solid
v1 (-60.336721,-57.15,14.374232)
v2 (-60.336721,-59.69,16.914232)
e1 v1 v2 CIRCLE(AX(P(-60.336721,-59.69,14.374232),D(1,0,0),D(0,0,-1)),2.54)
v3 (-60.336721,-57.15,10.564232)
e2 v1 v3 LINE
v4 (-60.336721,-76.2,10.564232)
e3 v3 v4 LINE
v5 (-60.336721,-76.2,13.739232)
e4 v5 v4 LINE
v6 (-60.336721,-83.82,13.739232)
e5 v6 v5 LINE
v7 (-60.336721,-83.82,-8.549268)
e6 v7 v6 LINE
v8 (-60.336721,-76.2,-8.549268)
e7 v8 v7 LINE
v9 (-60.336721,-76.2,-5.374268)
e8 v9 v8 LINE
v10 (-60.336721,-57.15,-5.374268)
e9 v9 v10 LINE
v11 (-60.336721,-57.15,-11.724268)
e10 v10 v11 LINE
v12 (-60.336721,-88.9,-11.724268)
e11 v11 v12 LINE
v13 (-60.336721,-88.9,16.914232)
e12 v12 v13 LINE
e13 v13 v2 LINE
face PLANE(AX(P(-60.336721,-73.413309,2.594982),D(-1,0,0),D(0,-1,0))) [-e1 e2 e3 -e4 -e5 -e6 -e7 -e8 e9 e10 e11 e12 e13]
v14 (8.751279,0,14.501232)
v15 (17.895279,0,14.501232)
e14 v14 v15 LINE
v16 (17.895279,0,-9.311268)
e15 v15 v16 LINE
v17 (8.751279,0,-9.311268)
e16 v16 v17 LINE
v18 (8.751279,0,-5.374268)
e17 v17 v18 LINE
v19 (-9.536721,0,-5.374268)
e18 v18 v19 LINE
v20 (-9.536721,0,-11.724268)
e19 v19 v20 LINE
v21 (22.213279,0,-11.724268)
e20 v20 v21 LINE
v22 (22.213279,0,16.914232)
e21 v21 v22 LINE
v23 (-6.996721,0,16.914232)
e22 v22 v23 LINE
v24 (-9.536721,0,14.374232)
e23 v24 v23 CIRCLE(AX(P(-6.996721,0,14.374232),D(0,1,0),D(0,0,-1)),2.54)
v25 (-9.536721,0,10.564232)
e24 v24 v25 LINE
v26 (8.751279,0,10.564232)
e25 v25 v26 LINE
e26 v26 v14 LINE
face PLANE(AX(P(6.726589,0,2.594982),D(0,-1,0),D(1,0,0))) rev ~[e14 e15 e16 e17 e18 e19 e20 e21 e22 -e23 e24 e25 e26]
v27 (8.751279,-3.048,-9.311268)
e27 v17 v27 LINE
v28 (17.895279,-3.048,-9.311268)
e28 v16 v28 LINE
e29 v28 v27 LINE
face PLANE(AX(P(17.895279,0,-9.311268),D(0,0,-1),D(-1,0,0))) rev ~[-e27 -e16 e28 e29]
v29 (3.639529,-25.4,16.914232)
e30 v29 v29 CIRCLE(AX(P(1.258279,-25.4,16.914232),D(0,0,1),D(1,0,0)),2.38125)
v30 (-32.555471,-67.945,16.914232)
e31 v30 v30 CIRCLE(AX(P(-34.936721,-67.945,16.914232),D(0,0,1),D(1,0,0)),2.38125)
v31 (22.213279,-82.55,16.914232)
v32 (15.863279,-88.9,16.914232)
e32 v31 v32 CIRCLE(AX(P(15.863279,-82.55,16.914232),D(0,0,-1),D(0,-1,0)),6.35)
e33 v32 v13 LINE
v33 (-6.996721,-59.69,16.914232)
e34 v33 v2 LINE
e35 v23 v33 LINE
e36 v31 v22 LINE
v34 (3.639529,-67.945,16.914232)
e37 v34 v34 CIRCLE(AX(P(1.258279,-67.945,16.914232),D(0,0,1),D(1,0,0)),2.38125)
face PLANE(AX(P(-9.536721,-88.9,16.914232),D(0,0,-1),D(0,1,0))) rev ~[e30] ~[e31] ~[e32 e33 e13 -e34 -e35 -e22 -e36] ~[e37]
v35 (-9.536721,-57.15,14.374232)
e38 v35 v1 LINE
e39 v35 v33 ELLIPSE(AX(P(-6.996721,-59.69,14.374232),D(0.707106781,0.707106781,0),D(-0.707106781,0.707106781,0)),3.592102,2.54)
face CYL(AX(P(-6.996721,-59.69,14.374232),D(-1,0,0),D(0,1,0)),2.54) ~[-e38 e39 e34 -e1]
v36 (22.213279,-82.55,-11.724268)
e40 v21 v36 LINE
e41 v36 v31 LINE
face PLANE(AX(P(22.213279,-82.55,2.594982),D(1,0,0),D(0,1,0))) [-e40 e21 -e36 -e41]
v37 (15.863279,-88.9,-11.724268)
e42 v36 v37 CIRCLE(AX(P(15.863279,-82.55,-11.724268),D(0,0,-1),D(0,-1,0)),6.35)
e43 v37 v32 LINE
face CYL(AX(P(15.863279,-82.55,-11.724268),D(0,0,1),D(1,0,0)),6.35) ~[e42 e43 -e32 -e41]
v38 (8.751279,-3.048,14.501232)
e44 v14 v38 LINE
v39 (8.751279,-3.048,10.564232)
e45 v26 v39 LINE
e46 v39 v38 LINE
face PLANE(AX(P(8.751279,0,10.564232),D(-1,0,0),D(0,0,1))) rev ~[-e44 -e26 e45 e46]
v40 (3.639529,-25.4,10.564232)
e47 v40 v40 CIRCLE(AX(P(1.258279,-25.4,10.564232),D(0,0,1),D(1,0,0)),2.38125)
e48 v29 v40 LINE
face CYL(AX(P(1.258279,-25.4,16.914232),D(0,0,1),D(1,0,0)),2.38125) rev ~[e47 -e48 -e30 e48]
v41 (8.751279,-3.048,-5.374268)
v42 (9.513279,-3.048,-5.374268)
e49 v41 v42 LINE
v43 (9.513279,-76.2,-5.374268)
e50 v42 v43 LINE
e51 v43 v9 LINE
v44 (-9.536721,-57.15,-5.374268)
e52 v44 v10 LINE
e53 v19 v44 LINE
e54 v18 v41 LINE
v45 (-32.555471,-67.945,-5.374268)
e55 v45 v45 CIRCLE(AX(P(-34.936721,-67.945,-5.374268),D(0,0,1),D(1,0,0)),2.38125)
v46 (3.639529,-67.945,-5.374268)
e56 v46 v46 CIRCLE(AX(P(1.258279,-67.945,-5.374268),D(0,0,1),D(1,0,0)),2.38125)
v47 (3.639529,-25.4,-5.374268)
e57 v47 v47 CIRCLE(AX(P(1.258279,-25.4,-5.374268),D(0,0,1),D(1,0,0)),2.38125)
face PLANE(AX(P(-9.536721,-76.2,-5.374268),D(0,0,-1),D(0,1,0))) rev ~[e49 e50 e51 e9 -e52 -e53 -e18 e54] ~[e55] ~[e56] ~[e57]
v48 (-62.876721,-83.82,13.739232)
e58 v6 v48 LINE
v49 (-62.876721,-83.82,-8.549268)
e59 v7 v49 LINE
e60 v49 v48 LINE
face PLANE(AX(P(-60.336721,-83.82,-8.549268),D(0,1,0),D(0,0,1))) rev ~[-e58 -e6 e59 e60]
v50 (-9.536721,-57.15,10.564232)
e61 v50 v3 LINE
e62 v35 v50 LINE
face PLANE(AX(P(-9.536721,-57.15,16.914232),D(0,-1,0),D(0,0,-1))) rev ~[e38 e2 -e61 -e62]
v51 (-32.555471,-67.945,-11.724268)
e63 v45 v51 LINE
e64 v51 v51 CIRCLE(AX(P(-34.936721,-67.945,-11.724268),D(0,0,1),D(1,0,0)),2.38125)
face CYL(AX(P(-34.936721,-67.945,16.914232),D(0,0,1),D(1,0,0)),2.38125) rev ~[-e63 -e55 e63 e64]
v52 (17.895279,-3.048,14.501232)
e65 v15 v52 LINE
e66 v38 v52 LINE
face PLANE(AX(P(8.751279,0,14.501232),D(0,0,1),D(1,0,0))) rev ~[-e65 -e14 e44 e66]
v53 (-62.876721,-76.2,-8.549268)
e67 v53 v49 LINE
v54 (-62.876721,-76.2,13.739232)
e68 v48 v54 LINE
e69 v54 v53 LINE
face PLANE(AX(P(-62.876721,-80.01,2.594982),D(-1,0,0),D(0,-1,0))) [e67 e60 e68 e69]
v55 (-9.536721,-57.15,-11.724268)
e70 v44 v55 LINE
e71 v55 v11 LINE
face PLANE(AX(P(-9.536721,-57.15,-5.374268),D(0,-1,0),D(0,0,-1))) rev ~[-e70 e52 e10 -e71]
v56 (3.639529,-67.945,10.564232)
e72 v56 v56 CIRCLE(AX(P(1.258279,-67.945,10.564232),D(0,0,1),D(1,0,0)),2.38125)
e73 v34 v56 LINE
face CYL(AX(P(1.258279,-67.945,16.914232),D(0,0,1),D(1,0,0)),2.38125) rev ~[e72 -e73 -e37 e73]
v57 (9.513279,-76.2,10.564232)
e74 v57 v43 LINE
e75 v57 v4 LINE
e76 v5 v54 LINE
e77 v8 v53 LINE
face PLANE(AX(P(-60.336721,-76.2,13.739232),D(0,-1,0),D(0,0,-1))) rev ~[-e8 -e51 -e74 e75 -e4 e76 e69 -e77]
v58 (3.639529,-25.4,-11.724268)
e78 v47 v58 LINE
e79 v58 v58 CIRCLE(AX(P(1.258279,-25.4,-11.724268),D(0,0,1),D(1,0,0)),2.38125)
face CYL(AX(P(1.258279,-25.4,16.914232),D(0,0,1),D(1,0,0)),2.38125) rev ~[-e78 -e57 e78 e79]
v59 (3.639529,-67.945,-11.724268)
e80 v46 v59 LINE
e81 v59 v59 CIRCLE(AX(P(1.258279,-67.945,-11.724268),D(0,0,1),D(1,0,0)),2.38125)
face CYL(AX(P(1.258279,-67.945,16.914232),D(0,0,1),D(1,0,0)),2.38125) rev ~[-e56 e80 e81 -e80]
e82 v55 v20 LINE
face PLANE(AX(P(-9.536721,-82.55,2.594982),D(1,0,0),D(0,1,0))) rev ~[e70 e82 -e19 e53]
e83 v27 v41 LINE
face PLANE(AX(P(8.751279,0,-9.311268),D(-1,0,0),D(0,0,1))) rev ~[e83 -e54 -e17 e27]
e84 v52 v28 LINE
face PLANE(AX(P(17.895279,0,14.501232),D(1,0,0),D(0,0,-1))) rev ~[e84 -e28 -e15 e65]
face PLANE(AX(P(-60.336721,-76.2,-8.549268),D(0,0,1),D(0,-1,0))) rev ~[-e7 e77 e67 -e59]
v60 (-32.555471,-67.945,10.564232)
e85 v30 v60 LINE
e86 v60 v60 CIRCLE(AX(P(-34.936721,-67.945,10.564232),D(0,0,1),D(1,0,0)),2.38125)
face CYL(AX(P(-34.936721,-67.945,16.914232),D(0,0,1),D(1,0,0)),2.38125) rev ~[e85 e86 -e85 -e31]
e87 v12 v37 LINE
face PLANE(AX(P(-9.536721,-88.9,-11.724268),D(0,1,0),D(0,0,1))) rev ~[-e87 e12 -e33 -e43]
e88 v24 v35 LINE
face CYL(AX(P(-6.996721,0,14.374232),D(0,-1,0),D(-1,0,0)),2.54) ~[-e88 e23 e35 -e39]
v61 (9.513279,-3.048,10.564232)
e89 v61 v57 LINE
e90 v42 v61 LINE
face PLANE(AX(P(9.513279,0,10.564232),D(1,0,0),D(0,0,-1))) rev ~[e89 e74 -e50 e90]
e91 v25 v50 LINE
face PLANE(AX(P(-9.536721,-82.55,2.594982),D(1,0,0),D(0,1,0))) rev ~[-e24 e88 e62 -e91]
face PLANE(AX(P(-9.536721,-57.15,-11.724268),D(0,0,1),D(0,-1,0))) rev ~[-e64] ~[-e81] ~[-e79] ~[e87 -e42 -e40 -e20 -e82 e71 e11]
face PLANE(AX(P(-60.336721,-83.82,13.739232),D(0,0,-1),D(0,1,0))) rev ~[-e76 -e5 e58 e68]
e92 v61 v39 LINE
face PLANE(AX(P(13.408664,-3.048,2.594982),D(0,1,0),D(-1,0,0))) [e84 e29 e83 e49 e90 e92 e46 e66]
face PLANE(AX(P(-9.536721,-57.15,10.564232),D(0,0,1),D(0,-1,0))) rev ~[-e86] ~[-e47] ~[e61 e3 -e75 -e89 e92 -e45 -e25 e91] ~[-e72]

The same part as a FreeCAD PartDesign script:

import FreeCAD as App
import Part
import Sketcher
Q = App.Units.Quantity


def edges_at(feature, points):
    """Names of the edges that pass closest to the given points."""
    edges = feature.Shape.Edges
    near = lambda p: min(range(len(edges)), key=lambda i: edges[i].distToShape(Part.Vertex(*p))[0])
    return sorted({f"Edge{near(p) + 1}" for p in points})


def add_polygon(sketch, points):
    """Adds a closed chain of lines whose ends are joined by coincident constraints."""
    first, n = sketch.GeometryCount, len(points)
    for a, b in zip(points, points[1:] + points[:1]):
        sketch.addGeometry(Part.LineSegment(App.Vector(*a, 0), App.Vector(*b, 0)), False)
    for i in range(n):
        sketch.addConstraint(Sketcher.Constraint("Coincident", first + i, 2, first + (i + 1) % n, 1))

doc = App.newDocument("Part")
body = doc.addObject("PartDesign::Body", "Body")

sketch1 = body.newObject("Sketcher::SketchObject", "Sketch")
sketch1.AttachmentSupport = (doc.getObject("XZ_Plane"), [""])
sketch1.MapMode = "FlatFace"
add_polygon(sketch1, [(22, -12), (22, 17), (-10, 17), (-10, 11), (10, 11), (10, -5), (-10, -5), (-10, -12)])
sketch1.addConstraint([
    Sketcher.Constraint("Vertical", 0),
    Sketcher.Constraint("Horizontal", 1),
    Sketcher.Constraint("Vertical", 2),
    Sketcher.Constraint("Horizontal", 3),
    Sketcher.Constraint("Vertical", 4),
    Sketcher.Constraint("Horizontal", 5),
    Sketcher.Constraint("Vertical", 6),
    Sketcher.Constraint("Horizontal", 7),
    Sketcher.Constraint("Vertical", 2, 2, 5, 2),
    Sketcher.Constraint("Equal", 2, 6),
    Sketcher.Constraint("DistanceX", 1, 2, 1, 1, Q("1.25 in")),
    Sketcher.Constraint("DistanceX", 3, 1, 3, 2, Q("0.75 in")),
    Sketcher.Constraint("DistanceY", 2, 2, 2, 1, Q("0.25 in")),
    Sketcher.Constraint("DistanceY", 0, 1, 0, 2, Q("1.1275 in")),
    Sketcher.Constraint("DistanceX", -1, 1, 0, 2, 22.213279),
    Sketcher.Constraint("DistanceY", -1, 1, 0, 2, 16.914232),
])
pad1 = body.newObject("PartDesign::Pad", "Pad")
pad1.Profile = sketch1
pad1.Length = Q("3 in")

sketch2 = body.newObject("Sketcher::SketchObject", "Sketch001")
sketch2.AttachmentSupport = (doc.getObject("YZ_Plane"), [""])
sketch2.MapMode = "FlatFace"
sketch2.AttachmentOffset = App.Placement(App.Vector(0, 0, 22.213279), App.Rotation())
add_polygon(sketch2, [(-89, 17), (-89, -12), (-76, -12), (-76, 17)])
sketch2.addConstraint([
    Sketcher.Constraint("Vertical", 0),
    Sketcher.Constraint("Horizontal", 1),
    Sketcher.Constraint("Vertical", 2),
    Sketcher.Constraint("Horizontal", 3),
    Sketcher.Constraint("DistanceX", 1, 1, 1, 2, Q("0.5 in")),
    Sketcher.Constraint("DistanceX", 1, 2, -1, 1, Q("3 in")),
    Sketcher.Constraint("DistanceY", 0, 2, 0, 1, Q("1.1275 in")),
    Sketcher.Constraint("DistanceY", 0, 2, -1, 1, 11.724268),
])
pad2 = body.newObject("PartDesign::Pad", "Pad001")
pad2.Profile = sketch2
pad2.Length = Q("1.25 in")
pad2.Reversed = True

sketch3 = body.newObject("Sketcher::SketchObject", "Sketch002")
sketch3.AttachmentSupport = (doc.getObject("YZ_Plane"), [""])
sketch3.MapMode = "FlatFace"
sketch3.AttachmentOffset = App.Placement(App.Vector(0, 0, -9.536721), App.Rotation())
add_polygon(sketch3, [(-89, -12), (-89, 17), (-57, 17), (-57, 11), (-76, 11), (-76, -5), (-57, -5), (-57, -12)])
sketch3.addConstraint([
    Sketcher.Constraint("Vertical", 0),
    Sketcher.Constraint("Horizontal", 1),
    Sketcher.Constraint("Vertical", 2),
    Sketcher.Constraint("Horizontal", 3),
    Sketcher.Constraint("Vertical", 4),
    Sketcher.Constraint("Horizontal", 5),
    Sketcher.Constraint("Vertical", 6),
    Sketcher.Constraint("Horizontal", 7),
    Sketcher.Constraint("Vertical", 2, 2, 5, 2),
    Sketcher.Constraint("Equal", 2, 6),
    Sketcher.Constraint("DistanceX", 3, 2, -1, 1, Q("3 in")),
    Sketcher.Constraint("DistanceX", 1, 1, 1, 2, Q("1.25 in")),
    Sketcher.Constraint("DistanceX", 3, 2, 3, 1, Q("0.75 in")),
    Sketcher.Constraint("DistanceY", 2, 2, 2, 1, Q("0.25 in")),
    Sketcher.Constraint("DistanceY", 0, 1, 0, 2, Q("1.1275 in")),
    Sketcher.Constraint("DistanceY", -1, 1, 0, 2, 16.914232),
])
pad3 = body.newObject("PartDesign::Pad", "Pad002")
pad3.Profile = sketch3
pad3.Length = Q("2 in")
pad3.Reversed = True
doc.recompute()

fillet = body.newObject("PartDesign::Fillet", "Fillet")
fillet.Base = (pad3, edges_at(pad3, [(-9.537, -28.575, 16.914)]))
fillet.Radius = Q("0.1 in")
doc.recompute()

fillet2 = body.newObject("PartDesign::Fillet", "Fillet001")
fillet2.Base = (fillet, edges_at(fillet, [(-33.667, -57.15, 16.914)]))
fillet2.Radius = Q("0.1 in")
doc.recompute()

fillet3 = body.newObject("PartDesign::Fillet", "Fillet002")
fillet3.Base = (fillet2, edges_at(fillet2, [(22.213, -88.9, 2.595)]))
fillet3.Radius = Q("0.25 in")

sketch4 = body.newObject("Sketcher::SketchObject", "Sketch003")
sketch4.AttachmentSupport = (doc.getObject("XY_Plane"), [""])
sketch4.MapMode = "FlatFace"
sketch4.AttachmentOffset = App.Placement(App.Vector(0, 0, 16.914232), App.Rotation())
sketch4.addGeometry([
    Part.Circle(App.Vector(1.3, -67.9, 0), App.Vector(0, 0, 1), 2.4),
    Part.Circle(App.Vector(1.3, -25.4, 0), App.Vector(0, 0, 1), 2.4),
    Part.Circle(App.Vector(-34.9, -67.9, 0), App.Vector(0, 0, 1), 2.4),
], False)
sketch4.addConstraint([
    Sketcher.Constraint("Equal", 0, 1),
    Sketcher.Constraint("Equal", 1, 2),
    Sketcher.Constraint("Horizontal", 0, 3, 2, 3),
    Sketcher.Constraint("Vertical", 0, 3, 1, 3),
    Sketcher.Constraint("Diameter", 0, Q("0.1875 in")),
    Sketcher.Constraint("DistanceY", 1, 3, -1, 1, Q("1 in")),
    Sketcher.Constraint("DistanceY", 0, 3, -1, 1, Q("2.675 in")),
    Sketcher.Constraint("DistanceX", 2, 3, 0, 3, Q("1.425 in")),
    Sketcher.Constraint("DistanceX", -1, 1, 0, 3, 1.258279),
])
pocket1 = body.newObject("PartDesign::Pocket", "Pocket")
pocket1.Profile = sketch4
pocket1.Length = Q("2 in")

sketch5 = body.newObject("Sketcher::SketchObject", "Sketch004")
sketch5.AttachmentSupport = (doc.getObject("YZ_Plane"), [""])
sketch5.MapMode = "FlatFace"
sketch5.AttachmentOffset = App.Placement(App.Vector(0, 0, -60.336721), App.Rotation())
add_polygon(sketch5, [(-76, 14), (-76, -9), (-84, -9), (-84, 14)])
sketch5.addConstraint([
    Sketcher.Constraint("Vertical", 0),
    Sketcher.Constraint("Horizontal", 1),
    Sketcher.Constraint("Vertical", 2),
    Sketcher.Constraint("Horizontal", 3),
    Sketcher.Constraint("DistanceX", 1, 2, 1, 1, Q("0.3 in")),
    Sketcher.Constraint("DistanceX", 0, 2, -1, 1, Q("3 in")),
    Sketcher.Constraint("DistanceY", 0, 2, 0, 1, Q("0.8775 in")),
    Sketcher.Constraint("DistanceY", 0, 2, -1, 1, 8.549268),
])
pad4 = body.newObject("PartDesign::Pad", "Pad003")
pad4.Profile = sketch5
pad4.Length = Q("0.1 in")
pad4.Reversed = True

sketch6 = body.newObject("Sketcher::SketchObject", "Sketch005")
sketch6.AttachmentSupport = (doc.getObject("XZ_Plane"), [""])
sketch6.MapMode = "FlatFace"
add_polygon(sketch6, [(8.8, 14.5), (17.9, 14.5), (17.9, -9.3), (8.8, -9.3), (8.8, -5.4), (9.5, -5.4), (9.5, 10.6), (8.8, 10.6)])
sketch6.addConstraint([
    Sketcher.Constraint("Horizontal", 0),
    Sketcher.Constraint("Vertical", 1),
    Sketcher.Constraint("Horizontal", 2),
    Sketcher.Constraint("Vertical", 3),
    Sketcher.Constraint("Horizontal", 4),
    Sketcher.Constraint("Vertical", 5),
    Sketcher.Constraint("Horizontal", 6),
    Sketcher.Constraint("Vertical", 7),
    Sketcher.Constraint("Vertical", 3, 2, 6, 2),
    Sketcher.Constraint("Equal", 3, 7),
    Sketcher.Constraint("DistanceX", 0, 1, 0, 2, Q("0.36 in")),
    Sketcher.Constraint("DistanceX", 4, 1, 4, 2, Q("0.03 in")),
    Sketcher.Constraint("DistanceY", 1, 2, 1, 1, Q("0.9375 in")),
    Sketcher.Constraint("DistanceY", 3, 1, 3, 2, Q("0.155 in")),
    Sketcher.Constraint("DistanceX", -1, 1, 0, 2, 17.895279),
    Sketcher.Constraint("DistanceY", -1, 1, 0, 2, 14.501232),
])
pocket2 = body.newObject("PartDesign::Pocket", "Pocket001")
pocket2.Profile = sketch6
pocket2.Length = Q("0.12 in")
pocket2.Reversed = True

doc.recompute()
